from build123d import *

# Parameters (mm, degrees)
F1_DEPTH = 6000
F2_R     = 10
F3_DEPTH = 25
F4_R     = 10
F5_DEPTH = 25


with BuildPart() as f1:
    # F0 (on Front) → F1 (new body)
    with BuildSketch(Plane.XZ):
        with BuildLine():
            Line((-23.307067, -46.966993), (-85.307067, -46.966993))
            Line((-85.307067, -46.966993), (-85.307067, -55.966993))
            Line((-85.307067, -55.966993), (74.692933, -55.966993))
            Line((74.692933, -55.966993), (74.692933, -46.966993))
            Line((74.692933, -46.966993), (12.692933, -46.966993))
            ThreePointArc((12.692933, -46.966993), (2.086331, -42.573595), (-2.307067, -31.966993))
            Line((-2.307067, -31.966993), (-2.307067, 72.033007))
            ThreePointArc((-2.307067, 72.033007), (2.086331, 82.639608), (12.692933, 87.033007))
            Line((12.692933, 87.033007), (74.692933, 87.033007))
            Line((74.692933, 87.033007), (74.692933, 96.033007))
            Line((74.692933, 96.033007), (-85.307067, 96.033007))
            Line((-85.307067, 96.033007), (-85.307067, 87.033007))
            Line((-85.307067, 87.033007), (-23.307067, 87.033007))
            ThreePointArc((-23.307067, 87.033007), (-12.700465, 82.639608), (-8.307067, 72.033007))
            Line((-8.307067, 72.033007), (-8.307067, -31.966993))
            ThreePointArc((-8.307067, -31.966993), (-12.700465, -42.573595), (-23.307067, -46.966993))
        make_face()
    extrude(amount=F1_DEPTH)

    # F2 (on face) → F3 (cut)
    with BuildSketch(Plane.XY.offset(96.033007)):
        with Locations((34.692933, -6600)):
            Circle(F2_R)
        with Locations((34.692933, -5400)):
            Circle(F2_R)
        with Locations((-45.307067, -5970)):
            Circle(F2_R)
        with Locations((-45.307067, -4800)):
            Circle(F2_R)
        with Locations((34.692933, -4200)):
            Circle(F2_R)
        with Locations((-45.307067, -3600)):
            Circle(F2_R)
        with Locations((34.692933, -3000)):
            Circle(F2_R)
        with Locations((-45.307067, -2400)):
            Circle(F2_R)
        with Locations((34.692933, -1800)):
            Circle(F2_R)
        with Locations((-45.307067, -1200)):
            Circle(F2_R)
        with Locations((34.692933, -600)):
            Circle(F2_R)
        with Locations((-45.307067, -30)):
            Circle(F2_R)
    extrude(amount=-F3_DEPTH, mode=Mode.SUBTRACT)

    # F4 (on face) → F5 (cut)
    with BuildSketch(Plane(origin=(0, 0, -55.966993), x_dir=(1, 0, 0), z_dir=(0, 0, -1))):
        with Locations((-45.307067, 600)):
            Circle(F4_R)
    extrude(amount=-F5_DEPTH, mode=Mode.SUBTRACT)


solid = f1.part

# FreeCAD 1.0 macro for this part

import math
import FreeCAD as App
import Part
import Sketcher
from FreeCAD import Vector
Q = App.Units.Quantity

doc = App.newDocument("Part")
body = doc.addObject("PartDesign::Body", "Body")

# Sketch on XZ plane
sketch1 = body.newObject("Sketcher::SketchObject", "Sketch")
sketch1.AttachmentSupport = (doc.getObject("XZ_Plane"), [""])
sketch1.MapMode = "FlatFace"
sketch1.addGeometry(Part.LineSegment(Vector(-23.307067, -46.966993, 0), Vector(-85.307067, -46.966993, 0)), False)
sketch1.addGeometry(Part.LineSegment(Vector(-85.307067, -46.966993, 0), Vector(-85.307067, -55.966993, 0)), False)
sketch1.addGeometry(Part.LineSegment(Vector(-85.307067, -55.966993, 0), Vector(74.692933, -55.966993, 0)), False)
sketch1.addGeometry(Part.LineSegment(Vector(74.692933, -55.966993, 0), Vector(74.692933, -46.966993, 0)), False)
sketch1.addGeometry(Part.LineSegment(Vector(74.692933, -46.966993, 0), Vector(12.692933, -46.966993, 0)), False)
sketch1.addGeometry(Part.ArcOfCircle(Part.Circle(Vector(12.692932, -31.966994, 0), Vector(0, 0, 1), 14.999999), math.radians(179.999996), math.radians(270.000004)), False)
sketch1.addGeometry(Part.LineSegment(Vector(-2.307067, -31.966993, 0), Vector(-2.307067, 72.033007, 0)), False)
sketch1.addGeometry(Part.ArcOfCircle(Part.Circle(Vector(12.692934, 72.033006, 0), Vector(0, 0, 1), 15.000001), math.radians(90.000003), math.radians(179.999997)), False)
sketch1.addGeometry(Part.LineSegment(Vector(12.692933, 87.033007, 0), Vector(74.692933, 87.033007, 0)), False)
sketch1.addGeometry(Part.LineSegment(Vector(74.692933, 87.033007, 0), Vector(74.692933, 96.033007, 0)), False)
sketch1.addGeometry(Part.LineSegment(Vector(74.692933, 96.033007, 0), Vector(-85.307067, 96.033007, 0)), False)
sketch1.addGeometry(Part.LineSegment(Vector(-85.307067, 96.033007, 0), Vector(-85.307067, 87.033007, 0)), False)
sketch1.addGeometry(Part.LineSegment(Vector(-85.307067, 87.033007, 0), Vector(-23.307067, 87.033007, 0)), False)
sketch1.addGeometry(Part.ArcOfCircle(Part.Circle(Vector(-23.307068, 72.033006, 0), Vector(0, 0, 1), 15.000001), math.radians(0.000003), math.radians(89.999997)), False)
sketch1.addGeometry(Part.LineSegment(Vector(-8.307067, 72.033007, 0), Vector(-8.307067, -31.966993, 0)), False)
sketch1.addGeometry(Part.ArcOfCircle(Part.Circle(Vector(-23.307066, -31.966994, 0), Vector(0, 0, 1), 14.999999), math.radians(-90.000004), math.radians(0.000004)), False)
sketch1.addConstraint(Sketcher.Constraint("Coincident", 0, 2, 1, 1))
sketch1.addConstraint(Sketcher.Constraint("Coincident", 1, 2, 2, 1))
sketch1.addConstraint(Sketcher.Constraint("Coincident", 2, 2, 3, 1))
sketch1.addConstraint(Sketcher.Constraint("Coincident", 3, 2, 4, 1))
sketch1.addConstraint(Sketcher.Constraint("Tangent", 4, 2, 5, 2))
sketch1.addConstraint(Sketcher.Constraint("Tangent", 5, 1, 6, 1))
sketch1.addConstraint(Sketcher.Constraint("Tangent", 6, 2, 7, 2))
sketch1.addConstraint(Sketcher.Constraint("Tangent", 7, 1, 8, 1))
sketch1.addConstraint(Sketcher.Constraint("Coincident", 8, 2, 9, 1))
sketch1.addConstraint(Sketcher.Constraint("Coincident", 9, 2, 10, 1))
sketch1.addConstraint(Sketcher.Constraint("Coincident", 10, 2, 11, 1))
sketch1.addConstraint(Sketcher.Constraint("Coincident", 11, 2, 12, 1))
sketch1.addConstraint(Sketcher.Constraint("Tangent", 12, 2, 13, 2))
sketch1.addConstraint(Sketcher.Constraint("Tangent", 13, 1, 14, 1))
sketch1.addConstraint(Sketcher.Constraint("Tangent", 14, 2, 15, 2))
sketch1.addConstraint(Sketcher.Constraint("Tangent", 15, 1, 0, 1))
sketch1.addConstraint(Sketcher.Constraint("Horizontal", 0))
sketch1.addConstraint(Sketcher.Constraint("Vertical", 1))
sketch1.addConstraint(Sketcher.Constraint("Horizontal", 2))
sketch1.addConstraint(Sketcher.Constraint("Vertical", 3))
sketch1.addConstraint(Sketcher.Constraint("Horizontal", 4))
sketch1.addConstraint(Sketcher.Constraint("Vertical", 6))
sketch1.addConstraint(Sketcher.Constraint("Horizontal", 8))
sketch1.addConstraint(Sketcher.Constraint("Vertical", 9))
sketch1.addConstraint(Sketcher.Constraint("Horizontal", 10))
sketch1.addConstraint(Sketcher.Constraint("Vertical", 11))
sketch1.addConstraint(Sketcher.Constraint("Horizontal", 12))
sketch1.addConstraint(Sketcher.Constraint("Vertical", 14))
sketch1.addConstraint(Sketcher.Constraint("Equal", 5, 7))
sketch1.addConstraint(Sketcher.Constraint("Equal", 7, 13))
sketch1.addConstraint(Sketcher.Constraint("Equal", 13, 15))
sketch1.addConstraint(Sketcher.Constraint("Horizontal", 7, 3, 13, 3))
sketch1.addConstraint(Sketcher.Constraint("Horizontal", 5, 3, 15, 3))
sketch1.addConstraint(Sketcher.Constraint("Vertical", 3, 2, 8, 2))
sketch1.addConstraint(Sketcher.Constraint("Vertical", 1, 2, 10, 2))
sketch1.addConstraint(Sketcher.Constraint("Equal", 0, 4))
sketch1.addConstraint(Sketcher.Constraint("Equal", 3, 9))
sketch1.addConstraint(Sketcher.Constraint("Radius", 5, Q("14.999999 mm")))
sketch1.addConstraint(Sketcher.Constraint("DistanceX", 0, 2, 0, 1, Q("62 mm")))
sketch1.addConstraint(Sketcher.Constraint("DistanceX", 2, 1, 2, 2, Q("160 mm")))
sketch1.addConstraint(Sketcher.Constraint("DistanceY", 1, 2, 1, 1, Q("9 mm")))
sketch1.addConstraint(Sketcher.Constraint("DistanceY", 6, 1, 6, 2, Q("104 mm")))
sketch1.addConstraint(Sketcher.Constraint("DistanceX", -1, 1, 5, 3, Q("12.692932 mm")))
sketch1.addConstraint(Sketcher.Constraint("DistanceY", 5, 3, -1, 1, Q("31.966994 mm")))
pad1 = body.newObject("PartDesign::Pad", "Pad")
pad1.Profile = sketch1
pad1.Length = 6000

# Sketch on XY plane
sketch2 = body.newObject("Sketcher::SketchObject", "Sketch001")
sketch2.AttachmentSupport = (doc.getObject("XY_Plane"), [""])
sketch2.MapMode = "FlatFace"
sketch2.AttachmentOffset = App.Placement(Vector(0, 0, 96.033007), App.Rotation())
sketch2.addGeometry(Part.Circle(Vector(34.692933, -6600, 0), Vector(0, 0, 1), 10), False)
sketch2.addGeometry(Part.Circle(Vector(34.692933, -5400, 0), Vector(0, 0, 1), 10), False)
sketch2.addGeometry(Part.Circle(Vector(-45.307067, -5970, 0), Vector(0, 0, 1), 10), False)
sketch2.addGeometry(Part.Circle(Vector(-45.307067, -4800, 0), Vector(0, 0, 1), 10), False)
sketch2.addGeometry(Part.Circle(Vector(34.692933, -4200, 0), Vector(0, 0, 1), 10), False)
sketch2.addGeometry(Part.Circle(Vector(-45.307067, -3600, 0), Vector(0, 0, 1), 10), False)
sketch2.addGeometry(Part.Circle(Vector(34.692933, -3000, 0), Vector(0, 0, 1), 10), False)
sketch2.addGeometry(Part.Circle(Vector(-45.307067, -2400, 0), Vector(0, 0, 1), 10), False)
sketch2.addGeometry(Part.Circle(Vector(34.692933, -1800, 0), Vector(0, 0, 1), 10), False)
sketch2.addGeometry(Part.Circle(Vector(-45.307067, -1200, 0), Vector(0, 0, 1), 10), False)
sketch2.addGeometry(Part.Circle(Vector(34.692933, -600, 0), Vector(0, 0, 1), 10), False)
sketch2.addGeometry(Part.Circle(Vector(-45.307067, -30, 0), Vector(0, 0, 1), 10), False)
sketch2.addConstraint(Sketcher.Constraint("Equal", 0, 1))
sketch2.addConstraint(Sketcher.Constraint("Equal", 1, 2))
sketch2.addConstraint(Sketcher.Constraint("Equal", 2, 3))
sketch2.addConstraint(Sketcher.Constraint("Equal", 3, 4))
sketch2.addConstraint(Sketcher.Constraint("Equal", 4, 5))
sketch2.addConstraint(Sketcher.Constraint("Equal", 5, 6))
sketch2.addConstraint(Sketcher.Constraint("Equal", 6, 7))
sketch2.addConstraint(Sketcher.Constraint("Equal", 7, 8))
sketch2.addConstraint(Sketcher.Constraint("Equal", 8, 9))
sketch2.addConstraint(Sketcher.Constraint("Equal", 9, 10))
sketch2.addConstraint(Sketcher.Constraint("Equal", 10, 11))
sketch2.addConstraint(Sketcher.Constraint("Vertical", 0, 3, 1, 3))
sketch2.addConstraint(Sketcher.Constraint("Vertical", 2, 3, 3, 3))
sketch2.addConstraint(Sketcher.Constraint("Vertical", 1, 3, 4, 3))
sketch2.addConstraint(Sketcher.Constraint("Vertical", 3, 3, 5, 3))
sketch2.addConstraint(Sketcher.Constraint("Vertical", 4, 3, 6, 3))
sketch2.addConstraint(Sketcher.Constraint("Vertical", 5, 3, 7, 3))
sketch2.addConstraint(Sketcher.Constraint("Vertical", 6, 3, 8, 3))
sketch2.addConstraint(Sketcher.Constraint("Vertical", 7, 3, 9, 3))
sketch2.addConstraint(Sketcher.Constraint("Vertical", 8, 3, 10, 3))
sketch2.addConstraint(Sketcher.Constraint("Vertical", 9, 3, 11, 3))
sketch2.addConstraint(Sketcher.Constraint("Diameter", 0, Q("20 mm")))
sketch2.addConstraint(Sketcher.Constraint("DistanceY", 0, 3, -1, 1, Q("6600 mm")))
sketch2.addConstraint(Sketcher.Constraint("DistanceY", 1, 3, -1, 1, Q("5400 mm")))
sketch2.addConstraint(Sketcher.Constraint("DistanceY", 2, 3, -1, 1, Q("5970 mm")))
sketch2.addConstraint(Sketcher.Constraint("DistanceY", 3, 3, -1, 1, Q("4800 mm")))
sketch2.addConstraint(Sketcher.Constraint("DistanceY", 4, 3, -1, 1, Q("4200 mm")))
sketch2.addConstraint(Sketcher.Constraint("DistanceY", 5, 3, -1, 1, Q("3600 mm")))
sketch2.addConstraint(Sketcher.Constraint("DistanceY", 6, 3, -1, 1, Q("3000 mm")))
sketch2.addConstraint(Sketcher.Constraint("DistanceY", 7, 3, -1, 1, Q("2400 mm")))
sketch2.addConstraint(Sketcher.Constraint("DistanceY", 8, 3, -1, 1, Q("1800 mm")))
sketch2.addConstraint(Sketcher.Constraint("DistanceY", 9, 3, -1, 1, Q("1200 mm")))
sketch2.addConstraint(Sketcher.Constraint("DistanceY", 10, 3, -1, 1, Q("600 mm")))
sketch2.addConstraint(Sketcher.Constraint("DistanceY", 11, 3, -1, 1, Q("30 mm")))
sketch2.addConstraint(Sketcher.Constraint("DistanceX", 2, 3, 1, 3, Q("80 mm")))
sketch2.addConstraint(Sketcher.Constraint("DistanceX", -1, 1, 0, 3, Q("34.692933 mm")))
pocket1 = body.newObject("PartDesign::Pocket", "Pocket")
pocket1.Profile = sketch2
pocket1.Length = 25

# Sketch on XY plane
sketch3 = body.newObject("Sketcher::SketchObject", "Sketch002")
sketch3.AttachmentSupport = (doc.getObject("XY_Plane"), [""])
sketch3.MapMode = "FlatFace"
sketch3.AttachmentOffset = App.Placement(Vector(0, 0, -55.966993), App.Rotation())
sketch3.addGeometry(Part.Circle(Vector(-45.307067, -600, 0), Vector(0, 0, 1), 10), False)
sketch3.addConstraint(Sketcher.Constraint("Diameter", 0, Q("20 mm")))
sketch3.addConstraint(Sketcher.Constraint("DistanceY", 0, 3, -1, 1, Q("600 mm")))
sketch3.addConstraint(Sketcher.Constraint("DistanceX", 0, 3, -1, 1, Q("45.307067 mm")))
pocket2 = body.newObject("PartDesign::Pocket", "Pocket001")
pocket2.Profile = sketch3
pocket2.Length = 25
pocket2.Reversed = True

doc.recompute()
